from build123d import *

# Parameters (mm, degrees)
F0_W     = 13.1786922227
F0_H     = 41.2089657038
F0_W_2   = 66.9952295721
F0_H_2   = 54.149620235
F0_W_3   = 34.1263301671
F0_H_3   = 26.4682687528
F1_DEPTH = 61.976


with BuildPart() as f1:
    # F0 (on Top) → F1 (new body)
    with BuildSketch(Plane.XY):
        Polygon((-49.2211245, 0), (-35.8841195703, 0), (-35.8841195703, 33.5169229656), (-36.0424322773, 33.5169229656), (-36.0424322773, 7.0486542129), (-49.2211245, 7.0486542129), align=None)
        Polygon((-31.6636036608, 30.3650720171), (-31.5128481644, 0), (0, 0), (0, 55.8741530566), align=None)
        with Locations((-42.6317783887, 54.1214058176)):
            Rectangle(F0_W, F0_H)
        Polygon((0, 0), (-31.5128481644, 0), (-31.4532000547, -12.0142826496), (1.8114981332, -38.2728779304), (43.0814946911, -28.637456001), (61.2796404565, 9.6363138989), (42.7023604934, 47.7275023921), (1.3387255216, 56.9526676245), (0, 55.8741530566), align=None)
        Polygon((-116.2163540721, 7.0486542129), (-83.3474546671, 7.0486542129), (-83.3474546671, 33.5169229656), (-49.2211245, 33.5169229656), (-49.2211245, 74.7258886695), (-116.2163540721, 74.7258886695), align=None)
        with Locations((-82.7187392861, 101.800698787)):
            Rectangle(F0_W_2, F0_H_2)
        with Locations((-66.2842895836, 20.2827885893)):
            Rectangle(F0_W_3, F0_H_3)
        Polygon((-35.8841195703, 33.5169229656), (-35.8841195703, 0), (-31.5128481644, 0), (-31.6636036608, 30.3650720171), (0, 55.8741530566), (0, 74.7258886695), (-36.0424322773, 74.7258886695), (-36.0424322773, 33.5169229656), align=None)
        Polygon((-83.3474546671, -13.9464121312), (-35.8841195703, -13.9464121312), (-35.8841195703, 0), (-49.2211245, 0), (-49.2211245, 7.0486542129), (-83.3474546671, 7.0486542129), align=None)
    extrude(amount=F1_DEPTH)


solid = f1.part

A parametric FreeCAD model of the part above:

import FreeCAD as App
import Part
import Sketcher

V = App.Vector


def add_polygon(sketch, points):
    """Adds a closed chain of lines whose ends are joined by coincident constraints."""
    first, n = sketch.GeometryCount, len(points)
    for a, b in zip(points, points[1:] + points[:1]):
        sketch.addGeometry(Part.LineSegment(App.Vector(*a, 0), App.Vector(*b, 0)), False)
    for i in range(n):
        sketch.addConstraint(Sketcher.Constraint("Coincident", first + i, 2, first + (i + 1) % n, 1))

doc = App.newDocument("Part")
params = doc.addObject("Spreadsheet::Sheet", "Params")
for row, (alias, value) in enumerate([
    ("pad1_length", "2.44 in"),
], start=1):
    params.set(f"A{row}", alias)
    params.set(f"B{row}", "=" + value)
    params.setAlias(f"B{row}", alias)

body = doc.addObject("PartDesign::Body", "Body")

# Sketch on XY plane
sketch1 = body.newObject("Sketcher::SketchObject", "Sketch")
sketch1.AttachmentSupport = (doc.getObject("XY_Plane"), [""])
sketch1.MapMode = "FlatFace"
add_polygon(sketch1, [(-116.2, 7), (-83.3, 7), (-83.3, -13.9), (-35.9, -13.9), (-35.9, 0), (-31.5, 0), (-31.5, -12), (1.8, -38.3), (43.1, -28.6), (61.3, 9.6), (42.7, 47.7), (1.3, 57), (0, 55.9), (0, 74.7), (-49.2, 74.7), (-49.2, 128.9), (-116.2, 128.9)])  # lines 0-16
add_polygon(sketch1, [(-36, 7), (-49.2, 7), (-49.2, 33.5), (-36, 33.5)])  # lines 17-20
sketch1.addConstraint([
    Sketcher.Constraint("Horizontal", 0),
    Sketcher.Constraint("Vertical", 1),
    Sketcher.Constraint("Horizontal", 2),
    Sketcher.Constraint("Vertical", 3),
    Sketcher.Constraint("Horizontal", 4),
    Sketcher.Constraint("Vertical", 12),
    Sketcher.Constraint("Horizontal", 13),
    Sketcher.Constraint("Vertical", 14),
    Sketcher.Constraint("Horizontal", 15),
    Sketcher.Constraint("Vertical", 16),
    Sketcher.Constraint("Horizontal", 17),
    Sketcher.Constraint("Vertical", 18),
    Sketcher.Constraint("Horizontal", 19),
    Sketcher.Constraint("Vertical", 20),
    Sketcher.Constraint("PointOnObject", 3, 2, -1),
    Sketcher.Constraint("PointOnObject", 11, 2, -2),
    Sketcher.Constraint("Horizontal", 16, 2, 17, 2),
    Sketcher.Constraint("Vertical", 14, 2, 17, 2),
    Sketcher.Constraint("Equal", 6, 7),
    Sketcher.Constraint("Equal", 7, 8),
    Sketcher.Constraint("Equal", 8, 9),
    Sketcher.Constraint("Equal", 9, 10),
    Sketcher.Constraint("DistanceX", 0, 1, 0, 2, 32.868899),
    Sketcher.Constraint("DistanceX", 4, 1, 4, 2, 4.371271),
    Sketcher.Constraint("DistanceX", 15, 2, 15, 1, 66.99523),
    Sketcher.Constraint("DistanceY", 14, 1, 14, 2, 54.14962),
    Sketcher.Constraint("DistanceY", 18, 1, 18, 2, 26.468269),
    Sketcher.Constraint("DistanceX", 5, 2, -1, 1, 31.4532),
    Sketcher.Constraint("DistanceX", -1, 1, 6, 2, 1.811498),
    Sketcher.Constraint("Distance", 5, 12.014431),
    Sketcher.Constraint("Distance", 11, 1.719122),
    Sketcher.Constraint("DistanceX", 2, 1, 2, 2, 47.463335),
    Sketcher.Constraint("DistanceX", 13, 2, 13, 1, 49.221125),
    Sketcher.Constraint("DistanceX", 17, 2, 17, 1, 13.178692),
    Sketcher.Constraint("DistanceY", 1, 2, 1, 1, 20.995066),
    Sketcher.Constraint("DistanceY", 3, 1, 3, 2, 13.946412),
    Sketcher.Constraint("DistanceY", 12, 1, 12, 2, 18.851736),
    Sketcher.Constraint("DistanceY", 16, 2, 16, 1, 121.826855),
    Sketcher.Constraint("DistanceX", -1, 1, 8, 2, 61.27964),
    Sketcher.Constraint("DistanceX", -1, 1, 9, 2, 42.70236),
    Sketcher.Constraint("DistanceY", 6, 2, 7, 2, 9.635422),
    Sketcher.Constraint("DistanceY", 7, 2, 8, 2, 38.27377),
])
pad1 = body.newObject("PartDesign::Pad", "Pad")
pad1.Profile = sketch1
pad1.setExpression("Length", "Params.pad1_length")

doc.recompute()
